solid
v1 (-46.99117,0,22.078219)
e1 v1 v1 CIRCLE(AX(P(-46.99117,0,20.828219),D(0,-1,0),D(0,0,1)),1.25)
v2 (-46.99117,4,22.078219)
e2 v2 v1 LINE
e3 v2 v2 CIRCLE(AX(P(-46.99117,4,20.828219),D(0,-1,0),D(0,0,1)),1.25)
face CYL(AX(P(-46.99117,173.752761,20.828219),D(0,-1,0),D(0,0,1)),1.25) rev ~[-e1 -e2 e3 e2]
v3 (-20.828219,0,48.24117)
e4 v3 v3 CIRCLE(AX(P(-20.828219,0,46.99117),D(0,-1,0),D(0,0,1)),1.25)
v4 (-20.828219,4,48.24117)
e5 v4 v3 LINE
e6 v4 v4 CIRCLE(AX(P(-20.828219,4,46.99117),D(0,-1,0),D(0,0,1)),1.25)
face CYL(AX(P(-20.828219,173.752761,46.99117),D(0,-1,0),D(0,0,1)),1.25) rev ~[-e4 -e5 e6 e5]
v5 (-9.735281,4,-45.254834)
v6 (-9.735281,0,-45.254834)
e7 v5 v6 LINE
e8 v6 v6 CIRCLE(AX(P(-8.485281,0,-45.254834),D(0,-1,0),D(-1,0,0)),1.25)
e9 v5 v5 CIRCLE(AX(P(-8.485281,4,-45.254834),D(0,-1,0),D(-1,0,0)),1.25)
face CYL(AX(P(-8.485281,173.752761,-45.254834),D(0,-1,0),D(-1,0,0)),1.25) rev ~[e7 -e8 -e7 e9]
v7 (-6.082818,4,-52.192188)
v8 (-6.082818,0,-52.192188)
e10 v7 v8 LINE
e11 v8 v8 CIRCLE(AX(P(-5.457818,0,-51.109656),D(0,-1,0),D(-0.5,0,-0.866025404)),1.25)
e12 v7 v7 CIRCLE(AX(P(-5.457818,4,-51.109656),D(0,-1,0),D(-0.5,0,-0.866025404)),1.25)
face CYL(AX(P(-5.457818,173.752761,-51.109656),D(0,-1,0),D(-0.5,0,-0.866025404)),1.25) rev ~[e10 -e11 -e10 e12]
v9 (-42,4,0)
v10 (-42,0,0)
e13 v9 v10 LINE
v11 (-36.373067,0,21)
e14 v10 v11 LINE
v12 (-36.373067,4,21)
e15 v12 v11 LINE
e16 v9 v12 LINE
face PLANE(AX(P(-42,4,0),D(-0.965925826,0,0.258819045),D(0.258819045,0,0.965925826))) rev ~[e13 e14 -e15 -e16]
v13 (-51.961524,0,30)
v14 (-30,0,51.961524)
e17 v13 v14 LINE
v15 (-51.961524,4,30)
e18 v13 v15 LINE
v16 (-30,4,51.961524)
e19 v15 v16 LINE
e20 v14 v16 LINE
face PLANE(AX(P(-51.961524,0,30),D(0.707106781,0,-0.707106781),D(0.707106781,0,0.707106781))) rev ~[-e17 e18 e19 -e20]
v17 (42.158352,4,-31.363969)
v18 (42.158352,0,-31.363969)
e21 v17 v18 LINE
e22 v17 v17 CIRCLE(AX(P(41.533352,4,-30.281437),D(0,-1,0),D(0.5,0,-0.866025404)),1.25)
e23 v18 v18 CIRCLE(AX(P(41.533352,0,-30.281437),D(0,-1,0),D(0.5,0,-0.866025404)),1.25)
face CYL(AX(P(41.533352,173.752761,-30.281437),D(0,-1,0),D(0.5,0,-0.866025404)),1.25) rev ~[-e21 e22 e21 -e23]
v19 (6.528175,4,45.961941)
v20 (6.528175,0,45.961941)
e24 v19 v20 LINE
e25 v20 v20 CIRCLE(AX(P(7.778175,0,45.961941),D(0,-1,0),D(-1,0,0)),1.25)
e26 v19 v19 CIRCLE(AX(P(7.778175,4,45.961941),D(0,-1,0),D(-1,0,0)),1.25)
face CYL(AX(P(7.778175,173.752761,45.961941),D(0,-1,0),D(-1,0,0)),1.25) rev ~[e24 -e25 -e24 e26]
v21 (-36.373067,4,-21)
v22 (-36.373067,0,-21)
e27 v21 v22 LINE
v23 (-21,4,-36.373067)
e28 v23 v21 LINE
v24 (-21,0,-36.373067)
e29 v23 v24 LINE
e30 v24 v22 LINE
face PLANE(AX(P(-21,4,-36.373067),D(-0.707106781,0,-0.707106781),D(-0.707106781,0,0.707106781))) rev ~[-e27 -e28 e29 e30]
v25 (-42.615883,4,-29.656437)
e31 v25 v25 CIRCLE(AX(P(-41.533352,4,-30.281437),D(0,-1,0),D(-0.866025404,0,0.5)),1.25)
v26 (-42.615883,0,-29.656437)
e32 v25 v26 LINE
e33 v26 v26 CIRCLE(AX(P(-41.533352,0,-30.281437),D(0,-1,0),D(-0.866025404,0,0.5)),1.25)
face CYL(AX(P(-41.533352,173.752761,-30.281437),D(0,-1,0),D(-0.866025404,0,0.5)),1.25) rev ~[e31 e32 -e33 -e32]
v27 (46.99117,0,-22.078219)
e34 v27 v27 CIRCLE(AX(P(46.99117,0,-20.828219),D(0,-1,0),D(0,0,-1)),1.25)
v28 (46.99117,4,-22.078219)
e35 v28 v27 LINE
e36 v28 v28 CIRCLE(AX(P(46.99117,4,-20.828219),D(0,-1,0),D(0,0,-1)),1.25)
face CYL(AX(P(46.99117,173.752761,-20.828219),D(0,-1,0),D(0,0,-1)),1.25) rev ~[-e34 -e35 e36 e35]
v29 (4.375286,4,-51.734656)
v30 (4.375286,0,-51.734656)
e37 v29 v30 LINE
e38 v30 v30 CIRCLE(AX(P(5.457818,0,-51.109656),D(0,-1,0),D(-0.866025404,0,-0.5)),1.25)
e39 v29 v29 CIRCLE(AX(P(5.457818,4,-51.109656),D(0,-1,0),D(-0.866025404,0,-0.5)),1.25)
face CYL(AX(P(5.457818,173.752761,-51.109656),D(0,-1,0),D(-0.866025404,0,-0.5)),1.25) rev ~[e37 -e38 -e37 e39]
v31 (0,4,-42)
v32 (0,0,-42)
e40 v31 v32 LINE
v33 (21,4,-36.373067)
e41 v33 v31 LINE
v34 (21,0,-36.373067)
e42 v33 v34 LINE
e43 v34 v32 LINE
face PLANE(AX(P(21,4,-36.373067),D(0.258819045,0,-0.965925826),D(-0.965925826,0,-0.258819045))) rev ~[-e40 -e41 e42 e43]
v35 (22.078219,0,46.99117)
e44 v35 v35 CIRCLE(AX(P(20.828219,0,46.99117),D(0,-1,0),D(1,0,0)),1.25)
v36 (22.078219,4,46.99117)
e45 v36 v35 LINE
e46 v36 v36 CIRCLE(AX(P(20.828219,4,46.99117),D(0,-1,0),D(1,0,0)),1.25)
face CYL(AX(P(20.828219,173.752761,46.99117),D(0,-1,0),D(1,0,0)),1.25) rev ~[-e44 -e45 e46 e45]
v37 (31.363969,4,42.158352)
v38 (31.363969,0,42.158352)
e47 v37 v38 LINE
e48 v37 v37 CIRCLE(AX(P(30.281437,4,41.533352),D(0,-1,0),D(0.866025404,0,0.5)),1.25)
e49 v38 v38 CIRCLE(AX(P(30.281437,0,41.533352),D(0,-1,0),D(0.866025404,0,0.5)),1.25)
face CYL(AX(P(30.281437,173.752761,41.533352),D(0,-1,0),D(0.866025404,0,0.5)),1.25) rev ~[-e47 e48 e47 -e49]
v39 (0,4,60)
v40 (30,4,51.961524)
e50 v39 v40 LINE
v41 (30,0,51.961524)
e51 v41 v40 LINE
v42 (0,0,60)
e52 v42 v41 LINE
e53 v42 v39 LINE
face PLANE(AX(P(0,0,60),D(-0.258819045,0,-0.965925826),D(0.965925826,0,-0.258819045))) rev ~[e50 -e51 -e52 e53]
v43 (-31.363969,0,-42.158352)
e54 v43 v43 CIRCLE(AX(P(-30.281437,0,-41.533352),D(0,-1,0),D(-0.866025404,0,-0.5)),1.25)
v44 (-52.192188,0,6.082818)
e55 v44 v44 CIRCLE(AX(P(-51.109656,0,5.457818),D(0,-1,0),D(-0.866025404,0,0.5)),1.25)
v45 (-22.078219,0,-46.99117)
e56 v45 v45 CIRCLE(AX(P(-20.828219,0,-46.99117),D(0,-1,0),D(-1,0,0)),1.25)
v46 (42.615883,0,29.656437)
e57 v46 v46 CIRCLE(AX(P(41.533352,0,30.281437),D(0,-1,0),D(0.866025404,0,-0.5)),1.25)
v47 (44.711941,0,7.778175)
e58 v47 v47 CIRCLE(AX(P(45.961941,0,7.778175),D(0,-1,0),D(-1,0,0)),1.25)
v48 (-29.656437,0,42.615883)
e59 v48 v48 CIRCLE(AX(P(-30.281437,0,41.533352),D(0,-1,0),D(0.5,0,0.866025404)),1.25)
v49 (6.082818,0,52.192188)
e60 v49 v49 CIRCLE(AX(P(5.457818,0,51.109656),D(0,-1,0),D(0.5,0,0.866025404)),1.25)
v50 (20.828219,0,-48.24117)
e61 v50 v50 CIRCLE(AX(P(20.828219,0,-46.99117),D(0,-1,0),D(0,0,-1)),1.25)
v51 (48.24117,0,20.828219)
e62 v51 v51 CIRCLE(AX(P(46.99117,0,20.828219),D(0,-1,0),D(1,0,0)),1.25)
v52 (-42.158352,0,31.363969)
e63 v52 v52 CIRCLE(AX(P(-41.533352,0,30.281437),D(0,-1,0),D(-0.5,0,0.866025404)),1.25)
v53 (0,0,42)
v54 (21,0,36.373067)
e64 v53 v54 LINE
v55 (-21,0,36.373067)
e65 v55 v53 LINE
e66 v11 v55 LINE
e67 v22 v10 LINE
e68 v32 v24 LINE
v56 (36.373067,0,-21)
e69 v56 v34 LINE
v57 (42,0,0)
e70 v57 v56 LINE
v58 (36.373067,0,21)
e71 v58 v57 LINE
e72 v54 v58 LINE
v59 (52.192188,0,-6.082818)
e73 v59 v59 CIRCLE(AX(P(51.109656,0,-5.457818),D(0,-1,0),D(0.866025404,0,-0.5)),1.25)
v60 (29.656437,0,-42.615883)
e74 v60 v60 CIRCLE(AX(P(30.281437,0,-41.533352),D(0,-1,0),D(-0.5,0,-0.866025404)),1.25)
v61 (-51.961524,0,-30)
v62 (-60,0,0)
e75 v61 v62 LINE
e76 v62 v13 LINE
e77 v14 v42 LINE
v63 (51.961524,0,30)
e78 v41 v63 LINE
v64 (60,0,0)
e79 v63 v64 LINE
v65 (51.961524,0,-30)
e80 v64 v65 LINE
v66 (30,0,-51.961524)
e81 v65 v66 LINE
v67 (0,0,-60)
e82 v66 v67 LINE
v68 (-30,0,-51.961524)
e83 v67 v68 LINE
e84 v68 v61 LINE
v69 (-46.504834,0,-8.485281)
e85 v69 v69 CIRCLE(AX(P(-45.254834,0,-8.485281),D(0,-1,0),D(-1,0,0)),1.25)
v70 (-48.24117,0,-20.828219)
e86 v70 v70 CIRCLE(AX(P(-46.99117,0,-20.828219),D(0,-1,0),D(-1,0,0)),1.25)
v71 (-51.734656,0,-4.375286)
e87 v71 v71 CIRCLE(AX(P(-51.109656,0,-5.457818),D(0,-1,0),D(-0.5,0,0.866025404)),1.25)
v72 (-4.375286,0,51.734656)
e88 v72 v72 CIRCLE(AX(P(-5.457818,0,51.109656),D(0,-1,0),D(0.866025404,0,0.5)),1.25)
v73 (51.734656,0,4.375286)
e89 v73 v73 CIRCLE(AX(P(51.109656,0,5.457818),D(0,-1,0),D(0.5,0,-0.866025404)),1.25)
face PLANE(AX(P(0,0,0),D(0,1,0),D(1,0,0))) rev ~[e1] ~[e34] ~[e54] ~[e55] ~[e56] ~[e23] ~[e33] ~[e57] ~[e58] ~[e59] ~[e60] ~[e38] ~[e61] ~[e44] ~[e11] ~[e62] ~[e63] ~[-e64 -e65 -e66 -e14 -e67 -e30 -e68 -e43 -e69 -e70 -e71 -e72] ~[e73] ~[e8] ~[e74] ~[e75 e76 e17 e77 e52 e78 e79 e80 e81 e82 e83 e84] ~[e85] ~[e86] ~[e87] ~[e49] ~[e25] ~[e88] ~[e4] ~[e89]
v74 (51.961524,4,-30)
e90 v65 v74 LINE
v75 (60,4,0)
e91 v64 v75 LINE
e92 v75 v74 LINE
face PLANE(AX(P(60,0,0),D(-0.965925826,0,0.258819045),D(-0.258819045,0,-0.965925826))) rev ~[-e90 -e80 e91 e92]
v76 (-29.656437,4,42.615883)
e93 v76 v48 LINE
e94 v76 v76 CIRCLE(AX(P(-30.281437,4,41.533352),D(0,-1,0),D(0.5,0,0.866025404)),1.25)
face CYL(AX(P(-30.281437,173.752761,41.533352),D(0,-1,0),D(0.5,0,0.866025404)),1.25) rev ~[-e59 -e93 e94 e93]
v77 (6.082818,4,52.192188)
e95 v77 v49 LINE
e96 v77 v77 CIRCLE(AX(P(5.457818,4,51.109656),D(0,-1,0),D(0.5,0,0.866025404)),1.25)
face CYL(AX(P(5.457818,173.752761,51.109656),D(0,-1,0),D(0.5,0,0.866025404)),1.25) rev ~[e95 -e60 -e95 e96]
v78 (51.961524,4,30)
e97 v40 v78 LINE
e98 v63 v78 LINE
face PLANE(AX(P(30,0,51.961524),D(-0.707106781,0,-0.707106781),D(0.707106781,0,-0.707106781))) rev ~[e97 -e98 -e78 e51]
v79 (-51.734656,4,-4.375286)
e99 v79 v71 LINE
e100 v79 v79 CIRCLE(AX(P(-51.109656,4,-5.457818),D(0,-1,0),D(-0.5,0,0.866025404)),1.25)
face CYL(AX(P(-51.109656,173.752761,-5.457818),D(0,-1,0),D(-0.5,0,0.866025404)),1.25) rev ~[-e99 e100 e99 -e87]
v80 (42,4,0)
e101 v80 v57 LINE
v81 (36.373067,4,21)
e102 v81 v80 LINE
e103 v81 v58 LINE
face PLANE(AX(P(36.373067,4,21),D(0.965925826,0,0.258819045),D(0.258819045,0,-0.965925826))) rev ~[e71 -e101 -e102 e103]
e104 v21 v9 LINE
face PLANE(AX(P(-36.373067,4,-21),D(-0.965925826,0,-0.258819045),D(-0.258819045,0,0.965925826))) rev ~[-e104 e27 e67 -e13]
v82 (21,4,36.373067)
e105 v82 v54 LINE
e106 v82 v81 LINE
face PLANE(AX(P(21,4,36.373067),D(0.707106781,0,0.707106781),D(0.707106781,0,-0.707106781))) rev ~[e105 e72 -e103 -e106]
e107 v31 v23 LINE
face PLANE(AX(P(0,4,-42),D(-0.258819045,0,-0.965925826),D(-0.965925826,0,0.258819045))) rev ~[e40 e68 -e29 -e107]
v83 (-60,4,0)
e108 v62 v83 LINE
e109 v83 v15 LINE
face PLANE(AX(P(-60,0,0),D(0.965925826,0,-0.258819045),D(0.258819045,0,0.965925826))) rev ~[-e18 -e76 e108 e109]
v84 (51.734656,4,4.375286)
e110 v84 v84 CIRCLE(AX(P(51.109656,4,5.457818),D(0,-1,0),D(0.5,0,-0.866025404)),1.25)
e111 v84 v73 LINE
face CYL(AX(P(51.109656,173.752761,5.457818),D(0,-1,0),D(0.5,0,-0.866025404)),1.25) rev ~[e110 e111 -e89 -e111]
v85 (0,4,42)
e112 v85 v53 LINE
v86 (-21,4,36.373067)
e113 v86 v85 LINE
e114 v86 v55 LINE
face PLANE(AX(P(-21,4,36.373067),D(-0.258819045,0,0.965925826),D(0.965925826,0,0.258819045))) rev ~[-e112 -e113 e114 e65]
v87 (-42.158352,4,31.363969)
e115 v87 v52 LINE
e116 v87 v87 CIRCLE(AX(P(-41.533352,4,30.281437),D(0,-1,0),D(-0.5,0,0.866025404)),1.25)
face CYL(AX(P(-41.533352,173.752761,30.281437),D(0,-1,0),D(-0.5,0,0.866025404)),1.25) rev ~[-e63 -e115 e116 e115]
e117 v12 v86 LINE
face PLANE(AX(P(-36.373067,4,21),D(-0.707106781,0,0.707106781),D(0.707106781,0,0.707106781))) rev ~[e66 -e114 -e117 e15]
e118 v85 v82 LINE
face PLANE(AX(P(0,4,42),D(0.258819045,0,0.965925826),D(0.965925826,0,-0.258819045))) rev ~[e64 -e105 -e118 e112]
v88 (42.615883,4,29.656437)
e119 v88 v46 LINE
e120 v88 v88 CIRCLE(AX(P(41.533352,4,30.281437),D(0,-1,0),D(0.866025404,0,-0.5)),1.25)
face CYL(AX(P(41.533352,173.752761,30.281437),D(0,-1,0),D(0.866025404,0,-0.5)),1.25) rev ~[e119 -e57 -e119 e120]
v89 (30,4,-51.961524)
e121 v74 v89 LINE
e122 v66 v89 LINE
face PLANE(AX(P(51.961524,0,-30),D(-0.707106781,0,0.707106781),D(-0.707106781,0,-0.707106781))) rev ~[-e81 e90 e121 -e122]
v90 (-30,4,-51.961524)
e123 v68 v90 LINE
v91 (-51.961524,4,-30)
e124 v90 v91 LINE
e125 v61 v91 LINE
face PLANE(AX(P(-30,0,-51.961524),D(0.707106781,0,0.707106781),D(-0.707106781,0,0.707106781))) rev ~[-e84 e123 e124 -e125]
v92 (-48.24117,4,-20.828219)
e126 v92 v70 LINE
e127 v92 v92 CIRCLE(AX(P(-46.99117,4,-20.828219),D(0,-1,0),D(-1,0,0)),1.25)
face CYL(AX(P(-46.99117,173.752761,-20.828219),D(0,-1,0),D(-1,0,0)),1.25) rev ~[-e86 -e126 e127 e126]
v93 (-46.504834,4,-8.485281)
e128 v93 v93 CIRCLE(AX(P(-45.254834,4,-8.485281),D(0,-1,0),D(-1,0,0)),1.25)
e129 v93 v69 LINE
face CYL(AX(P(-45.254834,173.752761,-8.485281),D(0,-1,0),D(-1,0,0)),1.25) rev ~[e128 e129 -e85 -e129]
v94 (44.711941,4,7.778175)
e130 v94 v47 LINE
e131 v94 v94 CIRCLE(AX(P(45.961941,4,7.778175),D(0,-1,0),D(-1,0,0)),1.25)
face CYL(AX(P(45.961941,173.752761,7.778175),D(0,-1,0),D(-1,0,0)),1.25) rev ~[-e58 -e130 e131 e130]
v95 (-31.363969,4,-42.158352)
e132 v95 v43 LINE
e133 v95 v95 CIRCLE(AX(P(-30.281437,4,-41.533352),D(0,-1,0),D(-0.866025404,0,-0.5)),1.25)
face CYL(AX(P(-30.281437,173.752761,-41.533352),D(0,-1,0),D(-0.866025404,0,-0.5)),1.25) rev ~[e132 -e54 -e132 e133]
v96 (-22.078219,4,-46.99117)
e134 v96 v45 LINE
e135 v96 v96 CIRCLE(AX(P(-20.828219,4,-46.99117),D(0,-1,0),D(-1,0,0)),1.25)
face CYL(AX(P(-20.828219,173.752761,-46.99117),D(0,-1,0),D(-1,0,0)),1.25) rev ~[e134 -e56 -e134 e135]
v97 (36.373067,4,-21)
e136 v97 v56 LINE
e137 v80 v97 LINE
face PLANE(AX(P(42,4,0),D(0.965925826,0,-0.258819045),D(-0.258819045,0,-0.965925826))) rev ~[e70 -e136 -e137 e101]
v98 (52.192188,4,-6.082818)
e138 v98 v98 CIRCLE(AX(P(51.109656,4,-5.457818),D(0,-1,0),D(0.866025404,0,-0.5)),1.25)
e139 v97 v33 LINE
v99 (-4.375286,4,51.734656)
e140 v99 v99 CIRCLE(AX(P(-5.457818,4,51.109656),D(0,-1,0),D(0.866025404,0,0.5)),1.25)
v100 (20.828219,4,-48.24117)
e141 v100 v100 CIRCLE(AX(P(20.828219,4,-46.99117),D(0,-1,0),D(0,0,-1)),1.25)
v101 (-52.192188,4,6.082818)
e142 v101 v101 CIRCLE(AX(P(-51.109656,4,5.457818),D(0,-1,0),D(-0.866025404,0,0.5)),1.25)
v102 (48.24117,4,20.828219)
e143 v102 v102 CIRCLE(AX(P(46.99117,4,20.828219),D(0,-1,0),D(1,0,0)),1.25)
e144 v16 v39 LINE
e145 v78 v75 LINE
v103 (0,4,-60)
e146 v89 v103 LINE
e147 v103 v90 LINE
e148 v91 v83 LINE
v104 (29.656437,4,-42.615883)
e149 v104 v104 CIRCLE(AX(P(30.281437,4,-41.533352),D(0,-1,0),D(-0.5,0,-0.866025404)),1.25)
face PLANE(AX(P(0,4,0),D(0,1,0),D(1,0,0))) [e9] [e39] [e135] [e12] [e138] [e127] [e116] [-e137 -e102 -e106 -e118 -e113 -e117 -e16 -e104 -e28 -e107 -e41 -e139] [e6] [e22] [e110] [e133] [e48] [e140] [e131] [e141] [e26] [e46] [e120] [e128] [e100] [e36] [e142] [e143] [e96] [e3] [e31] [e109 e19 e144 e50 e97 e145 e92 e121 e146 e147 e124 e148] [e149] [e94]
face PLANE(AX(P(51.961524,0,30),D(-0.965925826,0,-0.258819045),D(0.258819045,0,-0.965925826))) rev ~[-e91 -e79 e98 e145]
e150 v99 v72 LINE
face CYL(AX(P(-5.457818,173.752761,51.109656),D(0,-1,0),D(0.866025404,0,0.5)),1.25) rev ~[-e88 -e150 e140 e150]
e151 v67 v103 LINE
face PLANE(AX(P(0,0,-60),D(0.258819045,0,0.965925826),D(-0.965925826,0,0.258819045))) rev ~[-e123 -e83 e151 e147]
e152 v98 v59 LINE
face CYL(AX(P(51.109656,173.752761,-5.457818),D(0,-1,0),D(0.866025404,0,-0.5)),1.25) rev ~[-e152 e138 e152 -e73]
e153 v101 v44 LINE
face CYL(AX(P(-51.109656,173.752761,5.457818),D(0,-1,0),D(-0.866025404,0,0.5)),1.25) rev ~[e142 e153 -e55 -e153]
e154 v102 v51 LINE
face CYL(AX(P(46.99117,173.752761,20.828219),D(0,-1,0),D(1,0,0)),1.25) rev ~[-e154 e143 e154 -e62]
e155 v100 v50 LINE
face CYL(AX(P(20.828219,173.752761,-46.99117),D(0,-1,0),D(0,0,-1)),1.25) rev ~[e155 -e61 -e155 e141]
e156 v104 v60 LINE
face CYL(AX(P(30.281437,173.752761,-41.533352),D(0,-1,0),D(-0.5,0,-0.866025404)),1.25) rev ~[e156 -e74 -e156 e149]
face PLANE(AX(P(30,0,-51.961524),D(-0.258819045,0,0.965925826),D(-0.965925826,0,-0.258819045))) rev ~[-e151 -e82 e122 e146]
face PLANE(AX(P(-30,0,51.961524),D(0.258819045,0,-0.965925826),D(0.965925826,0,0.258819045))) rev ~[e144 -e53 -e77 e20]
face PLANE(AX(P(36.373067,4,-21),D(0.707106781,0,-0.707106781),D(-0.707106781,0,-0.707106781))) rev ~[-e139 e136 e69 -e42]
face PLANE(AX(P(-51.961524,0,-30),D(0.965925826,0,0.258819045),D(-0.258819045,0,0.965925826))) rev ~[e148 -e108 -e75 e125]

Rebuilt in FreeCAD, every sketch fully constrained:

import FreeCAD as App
import Part
import Sketcher

V = App.Vector
Q = App.Units.Quantity


def add_polygon(sketch, points):
    """Adds a closed chain of lines whose ends are joined by coincident constraints."""
    first, n = sketch.GeometryCount, len(points)
    for a, b in zip(points, points[1:] + points[:1]):
        sketch.addGeometry(Part.LineSegment(App.Vector(*a, 0), App.Vector(*b, 0)), False)
    for i in range(n):
        sketch.addConstraint(Sketcher.Constraint("Coincident", first + i, 2, first + (i + 1) % n, 1))

doc = App.newDocument("Part")
body = doc.addObject("PartDesign::Body", "Body")

sketch1 = body.newObject("Sketcher::SketchObject", "Sketch")
sketch1.AttachmentSupport = (doc.getObject("XZ_Plane"), [""])
sketch1.MapMode = "FlatFace"
add_polygon(sketch1, [(0, -60), (-30, -52), (-52, -30), (-60, 0), (-52, 30), (-30, 52), (0, 60), (30, 52), (52, 30), (60, 0), (52, -30), (30, -52)])
sketch1.addConstraint([
    Sketcher.Constraint("Symmetric", 0, 2, 6, 2, -1, 1),
    Sketcher.Constraint("Symmetric", 1, 2, 7, 2, -1, 1),
    Sketcher.Constraint("Symmetric", 2, 2, 8, 2, -1, 1),
    Sketcher.Constraint("Symmetric", 3, 2, 9, 2, -1, 1),
    Sketcher.Constraint("Symmetric", 4, 2, 10, 2, -1, 1),
    Sketcher.Constraint("Symmetric", 5, 2, 11, 2, -1, 1),
    Sketcher.Constraint("Symmetric", 4, 2, 6, 2, -2),
    Sketcher.Constraint("Symmetric", 3, 2, 7, 2, -2),
    Sketcher.Constraint("PointOnObject", 2, 2, -1),
    Sketcher.Constraint("PointOnObject", 5, 2, -2),
    Sketcher.Constraint("Perpendicular", 0, 3),
    Sketcher.Constraint("Perpendicular", 1, 4),
    Sketcher.Constraint("Equal", 0, 1),
    Sketcher.Constraint("Equal", 1, 2),
    Sketcher.Constraint("Angle", 0, Q("165 deg")),
    Sketcher.Constraint("DistanceX", 0, 2, -1, 1, Q("30 mm")),
])
pad1 = body.newObject("PartDesign::Pad", "Pad")
pad1.Profile = sketch1
pad1.Length = 4
pad1.Reversed = True

sketch2 = body.newObject("Sketcher::SketchObject", "Sketch001")
sketch2.AttachmentSupport = (doc.getObject("XZ_Plane"), [""])
sketch2.MapMode = "FlatFace"
sketch2.AttachmentOffset = App.Placement(V(0, 0, -4), App.Rotation())
sketch2.addGeometry([
    Part.Circle(V(-47, -20.8, 0), V(0, 0, 1), 1.2),
    Part.Circle(V(-20.8, -47, 0), V(0, 0, 1), 1.2),
], False)
sketch2.addConstraint([
    Sketcher.Constraint("Equal", 0, 1),
    Sketcher.Constraint("Diameter", 0, Q("2.5 mm")),
    Sketcher.Constraint("DistanceX", 0, 3, -1, 1, Q("46.99117 mm")),
    Sketcher.Constraint("DistanceY", 0, 3, -1, 1, Q("20.828219 mm")),
    Sketcher.Constraint("DistanceX", 1, 3, -1, 1, Q("20.828219 mm")),
    Sketcher.Constraint("DistanceY", 1, 3, -1, 1, Q("46.99117 mm")),
])
doc.recompute()
hole = body.newObject("PartDesign::Hole", "Hole")
hole.Profile = sketch2
hole.ThreadType = "None"
hole.Diameter = 2.5
hole.DepthType = "ThroughAll"
hole.Reversed = True
doc.recompute()

polarpattern = body.newObject("PartDesign::PolarPattern", "PolarPattern")
polarpattern.Originals = [hole]
polarpattern.Axis = (doc.getObject("Y_Axis"), [""])
polarpattern.Angle = 360
polarpattern.Occurrences = 12
body.Tip = polarpattern

sketch3 = body.newObject("Sketcher::SketchObject", "Sketch002")
sketch3.AttachmentSupport = (doc.getObject("XZ_Plane"), [""])
sketch3.MapMode = "FlatFace"
sketch3.AttachmentOffset = App.Placement(V(0, 0, -4), App.Rotation())
sketch3.addGeometry([
    Part.Circle(V(-45.3, -8.5, 0), V(0, 0, 1), 1.2),
    Part.Circle(V(-8.5, -45.3, 0), V(0, 0, 1), 1.2),
    Part.Circle(V(46, 7.8, 0), V(0, 0, 1), 1.2),
    Part.Circle(V(7.8, 46, 0), V(0, 0, 1), 1.2),
], False)
sketch3.addConstraint([
    Sketcher.Constraint("Equal", 0, 1),
    Sketcher.Constraint("Equal", 1, 2),
    Sketcher.Constraint("Equal", 2, 3),
    Sketcher.Constraint("Diameter", 0, Q("2.5 mm")),
    Sketcher.Constraint("DistanceY", 0, 3, -1, 1, Q("8.485281 mm")),
    Sketcher.Constraint("DistanceX", 1, 3, -1, 1, Q("8.485281 mm")),
    Sketcher.Constraint("DistanceX", -1, 1, 2, 3, Q("45.961941 mm")),
    Sketcher.Constraint("DistanceY", -1, 1, 3, 3, Q("45.961941 mm")),
    Sketcher.Constraint("DistanceY", 1, 3, 2, 3, Q("53.033009 mm")),
    Sketcher.Constraint("DistanceX", 0, 3, 3, 3, Q("53.033009 mm")),
    Sketcher.Constraint("DistanceX", 0, 3, -1, 1, Q("45.254834 mm")),
    Sketcher.Constraint("DistanceY", 1, 3, -1, 1, Q("45.254834 mm")),
])
doc.recompute()
hole2 = body.newObject("PartDesign::Hole", "Hole001")
hole2.Profile = sketch3
hole2.ThreadType = "None"
hole2.Diameter = 2.5
hole2.DepthType = "ThroughAll"
hole2.Reversed = True

sketch4 = body.newObject("Sketcher::SketchObject", "Sketch003")
sketch4.AttachmentSupport = (doc.getObject("XZ_Plane"), [""])
sketch4.MapMode = "FlatFace"
sketch4.AttachmentOffset = App.Placement(V(0, 0, -4), App.Rotation())
add_polygon(sketch4, [(0, -42), (-21, -36), (-36, -21), (-42, 0), (-36, 21), (-21, 36), (0, 42), (21, 36), (36, 21), (42, 0), (36, -21), (21, -36)])
sketch4.addConstraint([
    Sketcher.Constraint("Symmetric", 0, 2, 6, 2, -1, 1),
    Sketcher.Constraint("Symmetric", 1, 2, 7, 2, -1, 1),
    Sketcher.Constraint("Symmetric", 2, 2, 8, 2, -1, 1),
    Sketcher.Constraint("Symmetric", 3, 2, 9, 2, -1, 1),
    Sketcher.Constraint("Symmetric", 4, 2, 10, 2, -1, 1),
    Sketcher.Constraint("Symmetric", 5, 2, 11, 2, -1, 1),
    Sketcher.Constraint("Symmetric", 4, 2, 6, 2, -2),
    Sketcher.Constraint("Symmetric", 3, 2, 7, 2, -2),
    Sketcher.Constraint("PointOnObject", 2, 2, -1),
    Sketcher.Constraint("PointOnObject", 5, 2, -2),
    Sketcher.Constraint("Perpendicular", 0, 3),
    Sketcher.Constraint("Perpendicular", 1, 4),
    Sketcher.Constraint("Equal", 0, 1),
    Sketcher.Constraint("Equal", 1, 2),
    Sketcher.Constraint("Angle", 0, Q("165 deg")),
    Sketcher.Constraint("DistanceX", 0, 2, -1, 1, Q("21 mm")),
])
pocket1 = body.newObject("PartDesign::Pocket", "Pocket")
pocket1.Profile = sketch4
pocket1.Type = "ThroughAll"
pocket1.Reversed = True

doc.recompute()
